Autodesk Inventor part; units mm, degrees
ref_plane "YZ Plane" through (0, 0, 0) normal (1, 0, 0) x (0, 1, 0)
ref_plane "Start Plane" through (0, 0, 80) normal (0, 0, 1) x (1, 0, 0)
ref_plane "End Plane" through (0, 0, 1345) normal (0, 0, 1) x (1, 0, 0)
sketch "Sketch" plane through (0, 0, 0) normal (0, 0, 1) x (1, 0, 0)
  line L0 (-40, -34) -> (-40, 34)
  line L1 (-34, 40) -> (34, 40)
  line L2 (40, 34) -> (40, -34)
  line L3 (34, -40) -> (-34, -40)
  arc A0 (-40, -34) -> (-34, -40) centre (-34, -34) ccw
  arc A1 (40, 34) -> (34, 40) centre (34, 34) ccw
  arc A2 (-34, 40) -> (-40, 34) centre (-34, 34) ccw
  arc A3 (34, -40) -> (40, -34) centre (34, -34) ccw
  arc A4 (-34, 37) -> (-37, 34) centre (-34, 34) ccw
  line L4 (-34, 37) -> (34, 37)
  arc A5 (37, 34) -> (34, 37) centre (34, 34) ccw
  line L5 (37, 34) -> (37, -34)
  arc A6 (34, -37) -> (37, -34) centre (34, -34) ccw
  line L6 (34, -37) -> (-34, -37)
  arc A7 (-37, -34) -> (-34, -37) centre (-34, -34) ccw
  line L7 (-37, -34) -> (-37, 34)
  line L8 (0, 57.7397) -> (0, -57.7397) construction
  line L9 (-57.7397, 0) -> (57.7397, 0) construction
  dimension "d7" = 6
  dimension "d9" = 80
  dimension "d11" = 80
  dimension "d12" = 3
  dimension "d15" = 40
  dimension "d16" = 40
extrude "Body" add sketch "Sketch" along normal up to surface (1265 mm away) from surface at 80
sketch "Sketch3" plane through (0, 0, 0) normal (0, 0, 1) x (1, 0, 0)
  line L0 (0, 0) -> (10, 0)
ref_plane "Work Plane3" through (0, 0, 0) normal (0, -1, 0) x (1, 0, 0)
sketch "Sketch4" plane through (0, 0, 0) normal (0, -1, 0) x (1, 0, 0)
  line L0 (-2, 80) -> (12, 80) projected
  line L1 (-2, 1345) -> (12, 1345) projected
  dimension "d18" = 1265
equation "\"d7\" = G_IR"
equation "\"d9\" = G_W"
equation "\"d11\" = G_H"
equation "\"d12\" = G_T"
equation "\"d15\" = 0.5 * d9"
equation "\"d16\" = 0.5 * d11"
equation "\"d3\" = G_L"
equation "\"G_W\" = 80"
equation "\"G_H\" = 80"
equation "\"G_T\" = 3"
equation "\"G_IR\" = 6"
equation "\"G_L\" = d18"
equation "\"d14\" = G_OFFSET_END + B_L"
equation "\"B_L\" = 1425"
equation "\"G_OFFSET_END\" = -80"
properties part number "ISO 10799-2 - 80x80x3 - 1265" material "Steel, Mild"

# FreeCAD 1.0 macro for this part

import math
import FreeCAD as App
import Part
import Sketcher

V = App.Vector
Q = App.Units.Quantity

doc = App.newDocument("Part")
params = doc.addObject("Spreadsheet::Sheet", "Params")
for row, (alias, value) in enumerate([
    ("sketch1_radius", "6 mm"),
    ("sketch1_radius2", "3 mm"),
    ("pad1_length", "1265 mm"),
], start=1):
    params.set(f"A{row}", alias)
    params.set(f"B{row}", "=" + value)
    params.setAlias(f"B{row}", alias)

body = doc.addObject("PartDesign::Body", "Body")

# Sketch on XY plane
sketch1 = body.newObject("Sketcher::SketchObject", "Sketch")
sketch1.AttachmentSupport = (doc.getObject("XY_Plane"), [""])
sketch1.MapMode = "FlatFace"
sketch1.AttachmentOffset = App.Placement(V(0, 0, 80), App.Rotation())
sketch1.addGeometry([
    Part.LineSegment(V(-40, 34, 0), V(-40, -34, 0)),  # 0
    Part.ArcOfCircle(Part.Circle(V(-34, -34, 0), V(0, 0, 1), 6), math.radians(180), math.radians(270)),  # 1
    Part.LineSegment(V(-34, -40, 0), V(34, -40, 0)),  # 2
    Part.ArcOfCircle(Part.Circle(V(34, -34, 0), V(0, 0, 1), 6), math.radians(-90), math.radians(0)),  # 3
    Part.LineSegment(V(40, -34, 0), V(40, 34, 0)),  # 4
    Part.ArcOfCircle(Part.Circle(V(34, 34, 0), V(0, 0, 1), 6), math.radians(0), math.radians(90)),  # 5
    Part.LineSegment(V(34, 40, 0), V(-34, 40, 0)),  # 6
    Part.ArcOfCircle(Part.Circle(V(-34, 34, 0), V(0, 0, 1), 6), math.radians(90), math.radians(180)),  # 7
    Part.ArcOfCircle(Part.Circle(V(-34, 34, 0), V(0, 0, 1), 3), math.radians(90), math.radians(180)),  # 8
    Part.LineSegment(V(-34, 37, 0), V(34, 37, 0)),  # 9
    Part.ArcOfCircle(Part.Circle(V(34, 34, 0), V(0, 0, 1), 3), math.radians(0), math.radians(90)),  # 10
    Part.LineSegment(V(37, 34, 0), V(37, -34, 0)),  # 11
    Part.ArcOfCircle(Part.Circle(V(34, -34, 0), V(0, 0, 1), 3), math.radians(-90), math.radians(0)),  # 12
    Part.LineSegment(V(34, -37, 0), V(-34, -37, 0)),  # 13
    Part.ArcOfCircle(Part.Circle(V(-34, -34, 0), V(0, 0, 1), 3), math.radians(180), math.radians(270)),  # 14
    Part.LineSegment(V(-37, -34, 0), V(-37, 34, 0)),  # 15
], False)
sketch1.addConstraint([
    Sketcher.Constraint("Tangent", 0, 2, 1, 1),
    Sketcher.Constraint("Tangent", 1, 2, 2, 1),
    Sketcher.Constraint("Tangent", 2, 2, 3, 1),
    Sketcher.Constraint("Tangent", 3, 2, 4, 1),
    Sketcher.Constraint("Tangent", 4, 2, 5, 1),
    Sketcher.Constraint("Tangent", 5, 2, 6, 1),
    Sketcher.Constraint("Tangent", 6, 2, 7, 1),
    Sketcher.Constraint("Tangent", 7, 2, 0, 1),
    Sketcher.Constraint("Tangent", 8, 1, 9, 1),
    Sketcher.Constraint("Tangent", 9, 2, 10, 2),
    Sketcher.Constraint("Tangent", 10, 1, 11, 1),
    Sketcher.Constraint("Tangent", 11, 2, 12, 2),
    Sketcher.Constraint("Tangent", 12, 1, 13, 1),
    Sketcher.Constraint("Tangent", 13, 2, 14, 2),
    Sketcher.Constraint("Tangent", 14, 1, 15, 1),
    Sketcher.Constraint("Tangent", 15, 2, 8, 2),
    Sketcher.Constraint("Vertical", 0),
    Sketcher.Constraint("Horizontal", 2),
    Sketcher.Constraint("Vertical", 4),
    Sketcher.Constraint("Horizontal", 6),
    Sketcher.Constraint("Horizontal", 9),
    Sketcher.Constraint("Vertical", 11),
    Sketcher.Constraint("Horizontal", 13),
    Sketcher.Constraint("Vertical", 15),
    Sketcher.Constraint("Coincident", 8, 3, 7, 3),
    Sketcher.Constraint("Coincident", 10, 3, 5, 3),
    Sketcher.Constraint("Coincident", 12, 3, 3, 3),
    Sketcher.Constraint("Equal", 1, 3),
    Sketcher.Constraint("Equal", 3, 5),
    Sketcher.Constraint("Equal", 5, 7),
    Sketcher.Constraint("Equal", 12, 14),
    Sketcher.Constraint("Symmetric", 1, 3, 5, 3, -1, 1),
    Sketcher.Constraint("Equal", 13, 0),
    Sketcher.Constraint("Radius", 1, Q("6 mm")),
    Sketcher.Constraint("Radius", 8, Q("3 mm")),
    Sketcher.Constraint("DistanceX", 0, 2, -1, 1, Q("40 mm")),
])
sketch1.setExpression("Constraints[33]", "Params.sketch1_radius")
sketch1.setExpression("Constraints[34]", "Params.sketch1_radius2")
pad1 = body.newObject("PartDesign::Pad", "Pad")
pad1.Profile = sketch1
pad1.setExpression("Length", "Params.pad1_length")

doc.recompute()
